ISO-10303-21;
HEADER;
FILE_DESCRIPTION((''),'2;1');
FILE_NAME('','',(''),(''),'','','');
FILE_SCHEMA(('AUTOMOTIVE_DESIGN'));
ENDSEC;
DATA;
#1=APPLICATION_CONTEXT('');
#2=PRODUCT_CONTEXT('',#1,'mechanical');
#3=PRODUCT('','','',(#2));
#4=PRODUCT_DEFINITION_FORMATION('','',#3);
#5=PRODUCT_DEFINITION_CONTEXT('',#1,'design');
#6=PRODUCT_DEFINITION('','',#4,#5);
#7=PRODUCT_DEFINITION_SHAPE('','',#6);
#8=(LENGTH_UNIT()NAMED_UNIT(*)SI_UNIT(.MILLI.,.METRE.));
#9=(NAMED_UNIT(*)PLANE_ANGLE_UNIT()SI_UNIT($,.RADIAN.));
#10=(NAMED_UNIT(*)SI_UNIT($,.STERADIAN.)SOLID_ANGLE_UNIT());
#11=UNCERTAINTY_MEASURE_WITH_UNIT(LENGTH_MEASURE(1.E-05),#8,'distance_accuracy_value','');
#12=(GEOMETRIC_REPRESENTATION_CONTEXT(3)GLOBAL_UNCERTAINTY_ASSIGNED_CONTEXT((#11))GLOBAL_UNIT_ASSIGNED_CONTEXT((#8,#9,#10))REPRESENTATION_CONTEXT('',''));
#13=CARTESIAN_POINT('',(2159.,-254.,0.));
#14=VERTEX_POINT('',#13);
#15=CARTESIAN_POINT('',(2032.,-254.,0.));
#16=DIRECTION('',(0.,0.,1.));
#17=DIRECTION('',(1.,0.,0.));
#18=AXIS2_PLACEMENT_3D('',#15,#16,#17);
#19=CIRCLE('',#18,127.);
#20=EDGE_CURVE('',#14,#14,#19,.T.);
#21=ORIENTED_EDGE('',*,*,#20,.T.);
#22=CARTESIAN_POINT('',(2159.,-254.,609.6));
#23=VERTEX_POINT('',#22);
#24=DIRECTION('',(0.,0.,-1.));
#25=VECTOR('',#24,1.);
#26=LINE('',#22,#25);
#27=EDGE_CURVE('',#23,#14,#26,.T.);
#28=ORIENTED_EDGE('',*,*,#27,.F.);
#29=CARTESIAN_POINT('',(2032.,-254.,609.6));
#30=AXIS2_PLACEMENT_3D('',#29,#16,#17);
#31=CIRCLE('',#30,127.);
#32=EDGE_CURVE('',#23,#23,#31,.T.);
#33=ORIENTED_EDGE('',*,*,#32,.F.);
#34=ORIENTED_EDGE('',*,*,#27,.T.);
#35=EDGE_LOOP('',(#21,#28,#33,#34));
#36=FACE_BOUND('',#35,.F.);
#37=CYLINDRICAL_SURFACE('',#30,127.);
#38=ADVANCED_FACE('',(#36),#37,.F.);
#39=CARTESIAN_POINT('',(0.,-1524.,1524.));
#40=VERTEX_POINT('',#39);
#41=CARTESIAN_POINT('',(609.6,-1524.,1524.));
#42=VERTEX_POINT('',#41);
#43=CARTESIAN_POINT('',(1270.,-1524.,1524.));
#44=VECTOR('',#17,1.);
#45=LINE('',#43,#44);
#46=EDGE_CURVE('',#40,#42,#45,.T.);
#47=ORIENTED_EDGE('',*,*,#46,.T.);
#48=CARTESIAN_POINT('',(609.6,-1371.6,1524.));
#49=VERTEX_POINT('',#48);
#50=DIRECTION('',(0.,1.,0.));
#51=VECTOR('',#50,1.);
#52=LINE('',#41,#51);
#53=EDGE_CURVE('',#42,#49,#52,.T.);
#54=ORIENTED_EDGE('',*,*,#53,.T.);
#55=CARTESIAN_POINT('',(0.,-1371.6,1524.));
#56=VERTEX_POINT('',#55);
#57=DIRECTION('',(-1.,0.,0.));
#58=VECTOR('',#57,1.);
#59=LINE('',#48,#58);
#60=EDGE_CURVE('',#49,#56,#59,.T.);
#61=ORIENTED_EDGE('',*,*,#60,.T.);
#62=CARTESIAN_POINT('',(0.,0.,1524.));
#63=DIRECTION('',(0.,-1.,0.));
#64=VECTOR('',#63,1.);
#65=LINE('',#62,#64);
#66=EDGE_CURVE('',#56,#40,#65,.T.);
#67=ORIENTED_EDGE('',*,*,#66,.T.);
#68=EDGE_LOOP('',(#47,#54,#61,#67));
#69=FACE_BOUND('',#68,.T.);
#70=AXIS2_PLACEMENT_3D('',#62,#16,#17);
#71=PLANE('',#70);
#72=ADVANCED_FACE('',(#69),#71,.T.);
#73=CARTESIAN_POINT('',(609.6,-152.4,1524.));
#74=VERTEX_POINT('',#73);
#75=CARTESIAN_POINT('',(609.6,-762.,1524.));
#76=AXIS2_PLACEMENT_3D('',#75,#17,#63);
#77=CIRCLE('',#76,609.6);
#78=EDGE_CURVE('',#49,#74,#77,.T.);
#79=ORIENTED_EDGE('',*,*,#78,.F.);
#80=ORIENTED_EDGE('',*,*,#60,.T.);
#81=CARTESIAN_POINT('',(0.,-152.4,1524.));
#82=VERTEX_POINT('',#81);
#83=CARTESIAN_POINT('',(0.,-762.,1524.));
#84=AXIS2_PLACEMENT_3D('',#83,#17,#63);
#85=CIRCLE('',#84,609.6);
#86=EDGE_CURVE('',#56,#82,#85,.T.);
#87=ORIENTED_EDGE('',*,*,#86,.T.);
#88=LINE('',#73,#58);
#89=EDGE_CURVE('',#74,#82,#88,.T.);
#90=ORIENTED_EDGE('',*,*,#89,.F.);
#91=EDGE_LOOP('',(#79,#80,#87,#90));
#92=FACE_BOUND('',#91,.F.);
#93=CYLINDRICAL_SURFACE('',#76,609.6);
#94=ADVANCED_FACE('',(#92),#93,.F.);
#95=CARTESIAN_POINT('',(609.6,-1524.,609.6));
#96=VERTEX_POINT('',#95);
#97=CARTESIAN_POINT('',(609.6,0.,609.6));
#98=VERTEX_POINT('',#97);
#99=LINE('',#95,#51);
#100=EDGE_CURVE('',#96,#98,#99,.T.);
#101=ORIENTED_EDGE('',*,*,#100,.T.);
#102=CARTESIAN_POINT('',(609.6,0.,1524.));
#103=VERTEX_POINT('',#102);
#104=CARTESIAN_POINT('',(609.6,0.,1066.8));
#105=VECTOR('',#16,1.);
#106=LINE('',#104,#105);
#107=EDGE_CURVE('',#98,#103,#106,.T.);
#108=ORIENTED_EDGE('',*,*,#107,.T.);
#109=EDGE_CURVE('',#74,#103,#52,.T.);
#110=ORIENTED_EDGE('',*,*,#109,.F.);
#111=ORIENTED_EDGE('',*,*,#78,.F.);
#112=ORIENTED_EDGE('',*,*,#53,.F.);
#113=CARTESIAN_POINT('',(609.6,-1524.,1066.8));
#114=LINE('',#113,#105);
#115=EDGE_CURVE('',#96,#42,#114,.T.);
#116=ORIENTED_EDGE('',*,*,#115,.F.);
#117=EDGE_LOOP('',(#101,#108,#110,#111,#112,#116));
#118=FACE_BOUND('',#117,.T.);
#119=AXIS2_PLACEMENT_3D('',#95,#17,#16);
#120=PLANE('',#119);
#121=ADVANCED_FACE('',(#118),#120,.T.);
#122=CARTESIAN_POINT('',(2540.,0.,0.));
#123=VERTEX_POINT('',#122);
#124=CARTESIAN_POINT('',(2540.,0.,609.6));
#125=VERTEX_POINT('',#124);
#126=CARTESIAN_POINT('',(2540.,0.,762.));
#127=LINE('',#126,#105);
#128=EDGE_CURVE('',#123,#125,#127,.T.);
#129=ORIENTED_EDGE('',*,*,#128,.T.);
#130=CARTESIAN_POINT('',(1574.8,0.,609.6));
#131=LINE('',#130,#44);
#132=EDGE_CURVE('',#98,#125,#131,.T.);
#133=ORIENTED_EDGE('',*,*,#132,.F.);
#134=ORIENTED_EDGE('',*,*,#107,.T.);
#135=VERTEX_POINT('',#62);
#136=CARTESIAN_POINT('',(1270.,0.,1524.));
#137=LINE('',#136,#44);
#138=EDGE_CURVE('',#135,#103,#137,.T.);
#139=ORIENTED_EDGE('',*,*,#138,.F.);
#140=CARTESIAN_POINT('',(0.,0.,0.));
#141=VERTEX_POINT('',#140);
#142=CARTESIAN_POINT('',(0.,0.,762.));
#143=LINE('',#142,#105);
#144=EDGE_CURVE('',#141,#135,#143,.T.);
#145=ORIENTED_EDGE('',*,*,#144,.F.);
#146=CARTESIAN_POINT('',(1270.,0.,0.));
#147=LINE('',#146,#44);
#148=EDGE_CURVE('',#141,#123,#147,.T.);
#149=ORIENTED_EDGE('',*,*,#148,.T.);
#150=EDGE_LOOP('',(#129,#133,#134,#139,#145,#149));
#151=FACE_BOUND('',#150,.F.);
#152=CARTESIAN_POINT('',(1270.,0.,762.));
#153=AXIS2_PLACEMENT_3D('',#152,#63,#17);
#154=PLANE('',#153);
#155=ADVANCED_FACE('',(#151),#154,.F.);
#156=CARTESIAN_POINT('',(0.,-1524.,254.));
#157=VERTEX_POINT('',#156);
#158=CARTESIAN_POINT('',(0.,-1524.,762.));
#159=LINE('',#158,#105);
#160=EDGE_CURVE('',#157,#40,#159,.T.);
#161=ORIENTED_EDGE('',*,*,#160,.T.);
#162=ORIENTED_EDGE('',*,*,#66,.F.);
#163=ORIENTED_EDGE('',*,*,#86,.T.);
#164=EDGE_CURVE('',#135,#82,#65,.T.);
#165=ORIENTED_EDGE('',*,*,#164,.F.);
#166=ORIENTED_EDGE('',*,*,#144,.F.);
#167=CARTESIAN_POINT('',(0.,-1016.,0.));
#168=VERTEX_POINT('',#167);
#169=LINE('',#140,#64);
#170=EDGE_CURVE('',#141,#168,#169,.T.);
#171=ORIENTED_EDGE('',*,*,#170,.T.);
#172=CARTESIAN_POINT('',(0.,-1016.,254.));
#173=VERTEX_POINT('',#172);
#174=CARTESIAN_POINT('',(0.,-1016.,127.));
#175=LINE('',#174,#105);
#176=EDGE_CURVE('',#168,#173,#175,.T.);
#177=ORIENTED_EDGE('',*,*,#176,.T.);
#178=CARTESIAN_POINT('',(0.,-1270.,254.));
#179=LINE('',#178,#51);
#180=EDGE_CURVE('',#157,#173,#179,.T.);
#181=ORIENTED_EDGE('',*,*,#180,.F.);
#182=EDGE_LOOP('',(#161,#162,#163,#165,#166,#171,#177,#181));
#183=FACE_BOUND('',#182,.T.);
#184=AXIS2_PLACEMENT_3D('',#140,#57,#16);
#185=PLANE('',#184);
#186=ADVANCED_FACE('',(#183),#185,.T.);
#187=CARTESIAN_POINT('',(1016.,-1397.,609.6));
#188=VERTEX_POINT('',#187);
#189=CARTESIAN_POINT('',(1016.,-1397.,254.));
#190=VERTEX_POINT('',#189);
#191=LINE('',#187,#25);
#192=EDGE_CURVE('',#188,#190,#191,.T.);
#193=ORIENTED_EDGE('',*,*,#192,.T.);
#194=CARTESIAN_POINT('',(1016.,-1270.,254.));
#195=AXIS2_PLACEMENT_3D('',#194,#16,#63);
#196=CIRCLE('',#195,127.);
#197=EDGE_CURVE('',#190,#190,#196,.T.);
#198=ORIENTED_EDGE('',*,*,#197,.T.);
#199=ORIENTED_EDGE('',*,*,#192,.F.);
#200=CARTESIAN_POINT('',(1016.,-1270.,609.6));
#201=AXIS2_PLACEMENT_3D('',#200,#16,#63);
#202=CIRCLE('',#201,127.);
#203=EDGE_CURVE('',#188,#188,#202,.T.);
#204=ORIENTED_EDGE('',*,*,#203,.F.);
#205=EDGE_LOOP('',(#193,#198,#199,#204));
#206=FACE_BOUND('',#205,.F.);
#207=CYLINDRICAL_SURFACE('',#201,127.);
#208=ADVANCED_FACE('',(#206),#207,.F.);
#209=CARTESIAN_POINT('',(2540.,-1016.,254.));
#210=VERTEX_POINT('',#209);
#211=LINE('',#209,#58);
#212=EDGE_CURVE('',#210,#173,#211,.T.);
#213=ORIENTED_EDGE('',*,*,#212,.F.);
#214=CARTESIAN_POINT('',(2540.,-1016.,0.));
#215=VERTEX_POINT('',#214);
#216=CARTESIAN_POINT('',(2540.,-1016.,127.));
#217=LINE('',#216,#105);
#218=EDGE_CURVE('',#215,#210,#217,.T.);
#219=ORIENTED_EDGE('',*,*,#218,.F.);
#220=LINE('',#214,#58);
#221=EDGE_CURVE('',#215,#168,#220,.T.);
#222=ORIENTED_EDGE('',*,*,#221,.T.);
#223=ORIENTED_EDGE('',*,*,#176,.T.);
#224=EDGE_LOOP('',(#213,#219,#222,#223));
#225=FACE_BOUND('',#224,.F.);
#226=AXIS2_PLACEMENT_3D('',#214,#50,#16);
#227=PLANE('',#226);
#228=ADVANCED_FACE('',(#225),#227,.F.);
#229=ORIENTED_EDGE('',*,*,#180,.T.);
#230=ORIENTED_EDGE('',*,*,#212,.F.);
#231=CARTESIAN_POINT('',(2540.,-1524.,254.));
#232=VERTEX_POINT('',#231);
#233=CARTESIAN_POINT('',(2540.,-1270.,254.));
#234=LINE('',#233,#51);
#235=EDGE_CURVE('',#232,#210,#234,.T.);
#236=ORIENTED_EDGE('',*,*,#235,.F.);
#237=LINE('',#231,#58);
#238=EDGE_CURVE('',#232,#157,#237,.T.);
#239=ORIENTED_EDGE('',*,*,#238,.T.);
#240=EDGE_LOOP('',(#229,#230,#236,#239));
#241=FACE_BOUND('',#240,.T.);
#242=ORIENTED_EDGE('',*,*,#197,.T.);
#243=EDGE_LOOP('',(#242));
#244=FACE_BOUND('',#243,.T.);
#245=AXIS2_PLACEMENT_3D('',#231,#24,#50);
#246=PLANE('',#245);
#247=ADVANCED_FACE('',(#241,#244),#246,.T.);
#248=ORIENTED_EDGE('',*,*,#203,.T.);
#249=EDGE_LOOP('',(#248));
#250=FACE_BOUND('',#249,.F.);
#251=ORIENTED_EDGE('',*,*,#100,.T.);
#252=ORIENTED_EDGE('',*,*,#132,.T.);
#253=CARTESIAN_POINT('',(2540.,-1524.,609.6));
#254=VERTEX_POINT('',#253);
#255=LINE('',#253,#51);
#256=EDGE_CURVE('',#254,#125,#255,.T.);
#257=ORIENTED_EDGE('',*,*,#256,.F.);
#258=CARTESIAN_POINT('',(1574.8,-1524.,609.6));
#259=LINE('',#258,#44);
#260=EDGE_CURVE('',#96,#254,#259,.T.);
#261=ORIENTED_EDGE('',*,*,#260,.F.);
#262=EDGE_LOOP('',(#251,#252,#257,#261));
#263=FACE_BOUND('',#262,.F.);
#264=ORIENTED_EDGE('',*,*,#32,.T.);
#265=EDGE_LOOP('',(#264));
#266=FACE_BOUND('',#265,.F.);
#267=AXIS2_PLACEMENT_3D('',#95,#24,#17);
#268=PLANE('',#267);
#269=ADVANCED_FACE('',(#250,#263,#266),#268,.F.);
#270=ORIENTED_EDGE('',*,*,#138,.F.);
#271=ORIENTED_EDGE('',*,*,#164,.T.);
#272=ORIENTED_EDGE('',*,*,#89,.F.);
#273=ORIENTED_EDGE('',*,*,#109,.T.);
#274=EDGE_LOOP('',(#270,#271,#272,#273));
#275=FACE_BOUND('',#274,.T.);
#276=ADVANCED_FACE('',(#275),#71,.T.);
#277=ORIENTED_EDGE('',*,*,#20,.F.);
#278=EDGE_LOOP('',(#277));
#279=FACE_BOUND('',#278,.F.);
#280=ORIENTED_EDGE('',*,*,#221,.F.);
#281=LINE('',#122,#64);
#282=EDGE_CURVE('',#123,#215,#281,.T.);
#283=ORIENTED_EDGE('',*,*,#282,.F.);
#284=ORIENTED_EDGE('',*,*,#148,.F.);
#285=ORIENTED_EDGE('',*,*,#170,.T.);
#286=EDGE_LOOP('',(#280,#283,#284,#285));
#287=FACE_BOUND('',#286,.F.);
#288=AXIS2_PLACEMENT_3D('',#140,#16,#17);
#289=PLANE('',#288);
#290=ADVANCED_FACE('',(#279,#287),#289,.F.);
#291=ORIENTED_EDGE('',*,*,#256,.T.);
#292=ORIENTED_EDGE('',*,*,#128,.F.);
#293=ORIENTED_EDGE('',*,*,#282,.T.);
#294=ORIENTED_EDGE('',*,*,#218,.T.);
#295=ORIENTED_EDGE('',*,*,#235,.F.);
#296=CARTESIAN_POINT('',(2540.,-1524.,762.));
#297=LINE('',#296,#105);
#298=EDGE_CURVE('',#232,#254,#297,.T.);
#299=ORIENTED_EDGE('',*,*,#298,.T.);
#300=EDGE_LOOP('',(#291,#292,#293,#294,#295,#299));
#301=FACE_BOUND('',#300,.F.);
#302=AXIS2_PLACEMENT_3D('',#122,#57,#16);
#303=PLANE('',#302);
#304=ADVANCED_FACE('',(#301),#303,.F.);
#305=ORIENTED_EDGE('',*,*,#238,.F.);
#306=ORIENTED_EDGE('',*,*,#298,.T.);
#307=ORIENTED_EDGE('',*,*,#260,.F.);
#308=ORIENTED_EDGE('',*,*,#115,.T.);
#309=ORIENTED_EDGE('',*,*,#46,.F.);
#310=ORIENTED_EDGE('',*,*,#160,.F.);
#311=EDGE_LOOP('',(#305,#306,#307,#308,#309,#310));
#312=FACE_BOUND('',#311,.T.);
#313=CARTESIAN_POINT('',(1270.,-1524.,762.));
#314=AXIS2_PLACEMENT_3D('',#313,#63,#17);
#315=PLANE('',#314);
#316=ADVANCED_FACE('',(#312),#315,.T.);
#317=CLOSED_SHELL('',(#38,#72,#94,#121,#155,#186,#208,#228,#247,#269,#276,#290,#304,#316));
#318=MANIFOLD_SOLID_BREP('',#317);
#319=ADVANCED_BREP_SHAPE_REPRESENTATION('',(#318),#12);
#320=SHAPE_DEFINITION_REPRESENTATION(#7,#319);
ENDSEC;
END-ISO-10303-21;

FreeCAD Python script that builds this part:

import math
import FreeCAD as App
import Part
import Sketcher
Q = App.Units.Quantity

doc = App.newDocument("Part")
body = doc.addObject("PartDesign::Body", "Body")

# Sketch on XZ plane
sketch1 = body.newObject("Sketcher::SketchObject", "Sketch")
sketch1.AttachmentSupport = (doc.getObject("XZ_Plane"), [""])
sketch1.MapMode = "FlatFace"
sketch1.addGeometry([
    Part.LineSegment(App.Vector(0, 1524, 0), App.Vector(0, 0, 0)),
    Part.LineSegment(App.Vector(0, 0, 0), App.Vector(2540, 0, 0)),
    Part.LineSegment(App.Vector(2540, 0, 0), App.Vector(2540, 1524, 0)),
    Part.LineSegment(App.Vector(2540, 1524, 0), App.Vector(0, 1524, 0)),
], False)
sketch1.addConstraint([
    Sketcher.Constraint("Coincident", 0, 2, 1, 1),
    Sketcher.Constraint("Coincident", 1, 2, 2, 1),
    Sketcher.Constraint("Coincident", 2, 2, 3, 1),
    Sketcher.Constraint("Coincident", 3, 2, 0, 1),
    Sketcher.Constraint("Vertical", 0),
    Sketcher.Constraint("Horizontal", 1),
    Sketcher.Constraint("Vertical", 2),
    Sketcher.Constraint("Horizontal", 3),
    Sketcher.Constraint("Coincident", 0, 2, -1, 1),
    Sketcher.Constraint("DistanceX", 1, 1, 1, 2, Q("100 in")),
    Sketcher.Constraint("DistanceY", 0, 2, 0, 1, Q("60 in")),
])
pad1 = body.newObject("PartDesign::Pad", "Pad")
pad1.Profile = sketch1
pad1.Length = Q("60 in")

# Sketch on XZ plane
sketch2 = body.newObject("Sketcher::SketchObject", "Sketch001")
sketch2.AttachmentSupport = (doc.getObject("XZ_Plane"), [""])
sketch2.MapMode = "FlatFace"
sketch2.AttachmentOffset = App.Placement(App.Vector(0, 0, 60 * 25.4), App.Rotation())
sketch2.addGeometry([
    Part.LineSegment(App.Vector(610, 1524, 0), App.Vector(610, 610, 0)),
    Part.LineSegment(App.Vector(610, 610, 0), App.Vector(2540, 610, 0)),
    Part.LineSegment(App.Vector(2540, 610, 0), App.Vector(2540, 1524, 0)),
    Part.LineSegment(App.Vector(2540, 1524, 0), App.Vector(610, 1524, 0)),
], False)
sketch2.addConstraint([
    Sketcher.Constraint("Coincident", 0, 2, 1, 1),
    Sketcher.Constraint("Coincident", 1, 2, 2, 1),
    Sketcher.Constraint("Coincident", 2, 2, 3, 1),
    Sketcher.Constraint("Coincident", 3, 2, 0, 1),
    Sketcher.Constraint("Vertical", 0),
    Sketcher.Constraint("Horizontal", 1),
    Sketcher.Constraint("Vertical", 2),
    Sketcher.Constraint("Horizontal", 3),
    Sketcher.Constraint("DistanceX", 1, 1, 1, 2, Q("76 in")),
    Sketcher.Constraint("DistanceY", 0, 2, 0, 1, Q("36 in")),
    Sketcher.Constraint("DistanceX", -1, 1, 0, 2, Q("24 in")),
    Sketcher.Constraint("DistanceY", -1, 1, 0, 2, Q("24 in")),
])
pocket1 = body.newObject("PartDesign::Pocket", "Pocket")
pocket1.Profile = sketch2
pocket1.Length = Q("60 in")

# Sketch on YZ plane
sketch3 = body.newObject("Sketcher::SketchObject", "Sketch002")
sketch3.AttachmentSupport = (doc.getObject("YZ_Plane"), [""])
sketch3.MapMode = "FlatFace"
sketch3.AttachmentOffset = App.Placement(App.Vector(0, 0, 100 * 25.4), App.Rotation())
sketch3.addGeometry([
    Part.LineSegment(App.Vector(-1524, 254, 0), App.Vector(-1524, 0, 0)),
    Part.LineSegment(App.Vector(-1524, 0, 0), App.Vector(-1016, 0, 0)),
    Part.LineSegment(App.Vector(-1016, 0, 0), App.Vector(-1016, 254, 0)),
    Part.LineSegment(App.Vector(-1016, 254, 0), App.Vector(-1524, 254, 0)),
], False)
sketch3.addConstraint([
    Sketcher.Constraint("Coincident", 0, 2, 1, 1),
    Sketcher.Constraint("Coincident", 1, 2, 2, 1),
    Sketcher.Constraint("Coincident", 2, 2, 3, 1),
    Sketcher.Constraint("Coincident", 3, 2, 0, 1),
    Sketcher.Constraint("Vertical", 0),
    Sketcher.Constraint("Horizontal", 1),
    Sketcher.Constraint("Vertical", 2),
    Sketcher.Constraint("Horizontal", 3),
    Sketcher.Constraint("PointOnObject", 0, 2, -1),
    Sketcher.Constraint("DistanceX", 1, 1, 1, 2, Q("20 in")),
    Sketcher.Constraint("DistanceY", 0, 2, 0, 1, Q("10 in")),
    Sketcher.Constraint("DistanceX", 0, 2, -1, 1, Q("60 in")),
])
pocket2 = body.newObject("PartDesign::Pocket", "Pocket001")
pocket2.Profile = sketch3
pocket2.Length = Q("100 in")

# Sketch on YZ plane
sketch4 = body.newObject("Sketcher::SketchObject", "Sketch003")
sketch4.AttachmentSupport = (doc.getObject("YZ_Plane"), [""])
sketch4.MapMode = "FlatFace"
sketch4.AttachmentOffset = App.Placement(App.Vector(0, 0, 24 * 25.4), App.Rotation())
sketch4.addGeometry([
    Part.ArcOfCircle(Part.Circle(App.Vector(-762, 1524, 0), App.Vector(0, 0, 1), 610), math.radians(180), math.radians(360)),
    Part.LineSegment(App.Vector(-152, 1524, 0), App.Vector(-1372, 1524, 0)),
], False)
sketch4.addConstraint([
    Sketcher.Constraint("Coincident", 0, 1, 1, 2),
    Sketcher.Constraint("Coincident", 1, 1, 0, 2),
    Sketcher.Constraint("Horizontal", 1),
    Sketcher.Constraint("Radius", 0, Q("24 in")),
    Sketcher.Constraint("DistanceX", 0, 3, -1, 1, Q("30 in")),
    Sketcher.Constraint("DistanceY", -1, 1, 0, 3, Q("60 in")),
    Sketcher.Constraint("DistanceY", -1, 1, 1, 1, Q("60 in")),
])
pocket3 = body.newObject("PartDesign::Pocket", "Pocket002")
pocket3.Profile = sketch4
pocket3.Length = Q("24 in")

# Sketch on XY plane
sketch5 = body.newObject("Sketcher::SketchObject", "Sketch004")
sketch5.AttachmentSupport = (doc.getObject("XY_Plane"), [""])
sketch5.MapMode = "FlatFace"
sketch5.AttachmentOffset = App.Placement(App.Vector(0, 0, 24 * 25.4), App.Rotation())
sketch5.addGeometry([
    Part.Circle(App.Vector(1016, -1270, 0), App.Vector(0, 0, 1), 127),
    Part.Circle(App.Vector(2032, -254, 0), App.Vector(0, 0, 1), 127),
], False)
sketch5.addConstraint([
    Sketcher.Constraint("Equal", 0, 1),
    Sketcher.Constraint("Diameter", 0, Q("10 in")),
    Sketcher.Constraint("DistanceX", -1, 1, 0, 3, Q("40 in")),
    Sketcher.Constraint("DistanceY", 0, 3, -1, 1, Q("50 in")),
    Sketcher.Constraint("DistanceX", -1, 1, 1, 3, Q("80 in")),
    Sketcher.Constraint("DistanceY", 1, 3, -1, 1, Q("10 in")),
])
pocket4 = body.newObject("PartDesign::Pocket", "Pocket003")
pocket4.Profile = sketch5
pocket4.Length = Q("24 in")

doc.recompute()
